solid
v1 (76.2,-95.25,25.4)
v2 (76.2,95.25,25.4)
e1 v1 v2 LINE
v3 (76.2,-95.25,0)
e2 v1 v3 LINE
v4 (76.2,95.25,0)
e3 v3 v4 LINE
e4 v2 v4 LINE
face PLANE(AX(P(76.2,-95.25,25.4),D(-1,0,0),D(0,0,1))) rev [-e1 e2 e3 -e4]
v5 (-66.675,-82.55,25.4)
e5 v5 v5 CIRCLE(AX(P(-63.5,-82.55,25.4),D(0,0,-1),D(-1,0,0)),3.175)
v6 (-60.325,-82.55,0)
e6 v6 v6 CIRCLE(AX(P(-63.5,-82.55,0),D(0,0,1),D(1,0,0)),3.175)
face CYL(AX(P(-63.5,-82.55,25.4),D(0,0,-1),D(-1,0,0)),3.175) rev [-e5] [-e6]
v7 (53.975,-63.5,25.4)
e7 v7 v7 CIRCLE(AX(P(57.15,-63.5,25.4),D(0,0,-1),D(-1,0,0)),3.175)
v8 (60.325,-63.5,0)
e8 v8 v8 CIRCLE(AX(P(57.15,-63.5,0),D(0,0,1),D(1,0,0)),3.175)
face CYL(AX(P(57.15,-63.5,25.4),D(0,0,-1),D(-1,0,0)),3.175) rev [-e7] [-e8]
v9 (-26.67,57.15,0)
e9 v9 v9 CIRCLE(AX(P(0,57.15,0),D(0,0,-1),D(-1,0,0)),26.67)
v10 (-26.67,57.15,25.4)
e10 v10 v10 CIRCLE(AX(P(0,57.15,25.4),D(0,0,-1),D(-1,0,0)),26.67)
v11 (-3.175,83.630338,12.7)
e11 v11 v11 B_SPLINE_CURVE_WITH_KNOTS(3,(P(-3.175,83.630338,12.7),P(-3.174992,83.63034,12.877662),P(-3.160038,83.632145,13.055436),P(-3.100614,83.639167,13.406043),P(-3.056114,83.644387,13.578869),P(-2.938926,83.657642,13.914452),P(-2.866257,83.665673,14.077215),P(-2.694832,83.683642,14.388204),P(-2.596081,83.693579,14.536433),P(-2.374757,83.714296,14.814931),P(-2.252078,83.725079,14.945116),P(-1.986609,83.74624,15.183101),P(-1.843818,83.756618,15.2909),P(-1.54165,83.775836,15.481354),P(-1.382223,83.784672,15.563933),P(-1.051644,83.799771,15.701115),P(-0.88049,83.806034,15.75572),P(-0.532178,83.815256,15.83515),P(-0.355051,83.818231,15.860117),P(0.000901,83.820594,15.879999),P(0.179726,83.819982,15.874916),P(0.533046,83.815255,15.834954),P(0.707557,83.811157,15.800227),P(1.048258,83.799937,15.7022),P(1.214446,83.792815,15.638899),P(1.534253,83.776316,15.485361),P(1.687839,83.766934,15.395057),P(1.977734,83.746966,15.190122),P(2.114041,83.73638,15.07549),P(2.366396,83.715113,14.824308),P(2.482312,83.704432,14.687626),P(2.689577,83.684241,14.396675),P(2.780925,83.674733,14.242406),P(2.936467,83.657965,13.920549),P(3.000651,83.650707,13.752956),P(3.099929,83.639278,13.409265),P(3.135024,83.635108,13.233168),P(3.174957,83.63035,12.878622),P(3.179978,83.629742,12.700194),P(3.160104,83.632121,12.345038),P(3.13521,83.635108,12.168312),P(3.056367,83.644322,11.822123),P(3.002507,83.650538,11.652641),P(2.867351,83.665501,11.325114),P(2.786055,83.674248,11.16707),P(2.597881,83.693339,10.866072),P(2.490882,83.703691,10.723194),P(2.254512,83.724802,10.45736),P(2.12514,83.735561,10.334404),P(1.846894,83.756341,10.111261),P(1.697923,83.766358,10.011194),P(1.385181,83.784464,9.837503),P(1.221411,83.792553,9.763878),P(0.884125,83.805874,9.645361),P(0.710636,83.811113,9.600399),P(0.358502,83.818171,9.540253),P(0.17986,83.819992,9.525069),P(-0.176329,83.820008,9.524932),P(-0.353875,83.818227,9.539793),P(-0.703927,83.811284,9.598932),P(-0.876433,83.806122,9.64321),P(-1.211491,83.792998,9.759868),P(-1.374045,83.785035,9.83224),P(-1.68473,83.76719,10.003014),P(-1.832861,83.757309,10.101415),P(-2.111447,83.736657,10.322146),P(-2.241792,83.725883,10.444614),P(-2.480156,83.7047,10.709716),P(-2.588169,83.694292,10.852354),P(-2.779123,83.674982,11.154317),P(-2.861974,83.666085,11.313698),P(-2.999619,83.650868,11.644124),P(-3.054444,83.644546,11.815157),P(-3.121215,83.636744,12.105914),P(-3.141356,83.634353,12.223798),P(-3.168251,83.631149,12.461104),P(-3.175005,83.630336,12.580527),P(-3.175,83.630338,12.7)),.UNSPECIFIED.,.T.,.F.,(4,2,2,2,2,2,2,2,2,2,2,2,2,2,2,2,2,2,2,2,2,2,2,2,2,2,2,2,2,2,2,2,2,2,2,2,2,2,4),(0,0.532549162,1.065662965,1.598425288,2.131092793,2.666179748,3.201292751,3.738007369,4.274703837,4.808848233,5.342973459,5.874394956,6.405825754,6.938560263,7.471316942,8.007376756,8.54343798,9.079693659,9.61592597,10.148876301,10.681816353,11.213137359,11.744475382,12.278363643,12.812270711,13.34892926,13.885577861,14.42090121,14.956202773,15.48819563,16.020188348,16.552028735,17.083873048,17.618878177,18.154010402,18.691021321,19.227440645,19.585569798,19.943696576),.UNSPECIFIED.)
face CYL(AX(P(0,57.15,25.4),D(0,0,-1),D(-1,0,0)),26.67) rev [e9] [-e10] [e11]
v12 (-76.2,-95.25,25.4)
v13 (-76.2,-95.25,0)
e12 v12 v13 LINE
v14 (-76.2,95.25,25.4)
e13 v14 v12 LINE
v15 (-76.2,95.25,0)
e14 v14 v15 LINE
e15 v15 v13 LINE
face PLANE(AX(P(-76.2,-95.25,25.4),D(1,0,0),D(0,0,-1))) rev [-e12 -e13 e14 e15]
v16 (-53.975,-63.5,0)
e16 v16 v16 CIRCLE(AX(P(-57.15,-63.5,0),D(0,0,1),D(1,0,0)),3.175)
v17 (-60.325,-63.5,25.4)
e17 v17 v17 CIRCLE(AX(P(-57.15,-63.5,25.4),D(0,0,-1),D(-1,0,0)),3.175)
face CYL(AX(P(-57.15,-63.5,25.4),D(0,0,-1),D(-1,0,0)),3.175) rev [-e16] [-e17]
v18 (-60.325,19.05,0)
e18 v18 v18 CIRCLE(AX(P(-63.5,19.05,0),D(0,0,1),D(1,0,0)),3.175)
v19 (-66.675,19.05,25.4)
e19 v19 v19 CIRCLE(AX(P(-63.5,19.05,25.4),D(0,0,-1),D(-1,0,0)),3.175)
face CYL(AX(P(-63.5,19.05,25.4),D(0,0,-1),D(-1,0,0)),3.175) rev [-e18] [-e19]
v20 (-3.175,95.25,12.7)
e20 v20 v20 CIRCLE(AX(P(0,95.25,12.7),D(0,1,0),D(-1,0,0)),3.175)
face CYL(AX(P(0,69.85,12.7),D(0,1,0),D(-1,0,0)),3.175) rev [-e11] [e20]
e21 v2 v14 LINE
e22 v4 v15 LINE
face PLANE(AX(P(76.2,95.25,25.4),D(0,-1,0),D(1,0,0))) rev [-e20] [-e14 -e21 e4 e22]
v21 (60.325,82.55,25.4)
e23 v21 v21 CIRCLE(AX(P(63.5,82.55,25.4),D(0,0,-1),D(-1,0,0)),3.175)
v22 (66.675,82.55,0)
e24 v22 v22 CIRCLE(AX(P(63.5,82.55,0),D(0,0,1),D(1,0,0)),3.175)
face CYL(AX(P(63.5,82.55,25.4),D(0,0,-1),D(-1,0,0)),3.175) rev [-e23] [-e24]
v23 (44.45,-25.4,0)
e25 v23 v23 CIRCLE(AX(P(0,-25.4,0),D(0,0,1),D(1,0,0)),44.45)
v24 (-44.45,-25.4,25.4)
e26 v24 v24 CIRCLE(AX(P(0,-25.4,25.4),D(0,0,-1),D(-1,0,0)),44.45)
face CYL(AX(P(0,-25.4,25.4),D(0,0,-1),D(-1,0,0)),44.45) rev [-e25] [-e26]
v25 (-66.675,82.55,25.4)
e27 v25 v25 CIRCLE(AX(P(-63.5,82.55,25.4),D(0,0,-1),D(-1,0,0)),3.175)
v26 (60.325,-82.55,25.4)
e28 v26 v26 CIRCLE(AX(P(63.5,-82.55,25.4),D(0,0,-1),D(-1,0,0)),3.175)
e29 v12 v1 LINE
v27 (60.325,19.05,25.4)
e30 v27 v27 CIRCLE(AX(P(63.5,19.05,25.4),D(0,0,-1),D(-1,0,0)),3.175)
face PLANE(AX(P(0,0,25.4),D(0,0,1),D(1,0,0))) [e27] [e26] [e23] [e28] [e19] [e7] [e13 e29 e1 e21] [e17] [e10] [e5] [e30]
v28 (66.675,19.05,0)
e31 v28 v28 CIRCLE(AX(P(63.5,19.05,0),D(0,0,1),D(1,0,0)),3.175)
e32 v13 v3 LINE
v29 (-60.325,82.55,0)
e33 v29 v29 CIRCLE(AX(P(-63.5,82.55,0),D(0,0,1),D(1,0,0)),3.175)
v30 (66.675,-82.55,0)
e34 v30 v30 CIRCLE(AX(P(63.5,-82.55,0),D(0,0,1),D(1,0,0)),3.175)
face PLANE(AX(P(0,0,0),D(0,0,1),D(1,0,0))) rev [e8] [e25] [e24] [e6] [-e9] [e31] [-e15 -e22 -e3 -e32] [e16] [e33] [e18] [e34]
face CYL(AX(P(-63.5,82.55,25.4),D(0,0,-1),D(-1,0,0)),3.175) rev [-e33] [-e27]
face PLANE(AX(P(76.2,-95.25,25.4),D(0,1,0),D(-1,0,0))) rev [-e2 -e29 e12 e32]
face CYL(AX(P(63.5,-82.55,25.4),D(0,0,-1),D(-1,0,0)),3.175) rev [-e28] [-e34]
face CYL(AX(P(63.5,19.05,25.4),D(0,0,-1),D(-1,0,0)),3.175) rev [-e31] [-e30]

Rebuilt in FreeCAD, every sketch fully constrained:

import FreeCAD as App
import Part
import Sketcher

V = App.Vector
Q = App.Units.Quantity

doc = App.newDocument("Part")
body = doc.addObject("PartDesign::Body", "Body")

sketch1 = body.newObject("Sketcher::SketchObject", "Sketch")
sketch1.AttachmentSupport = (doc.getObject("XY_Plane"), [""])
sketch1.MapMode = "FlatFace"
sketch1.addGeometry([
    Part.LineSegment(V(-76.2, 95.25, 0), V(-76.2, -95.25, 0)),
    Part.LineSegment(V(-76.2, -95.25, 0), V(76.2, -95.25, 0)),
    Part.LineSegment(V(76.2, -95.25, 0), V(76.2, 95.25, 0)),
    Part.LineSegment(V(76.2, 95.25, 0), V(-76.2, 95.25, 0)),
], False)
sketch1.addConstraint([
    Sketcher.Constraint("Coincident", 0, 2, 1, 1),
    Sketcher.Constraint("Coincident", 1, 2, 2, 1),
    Sketcher.Constraint("Coincident", 2, 2, 3, 1),
    Sketcher.Constraint("Coincident", 3, 2, 0, 1),
    Sketcher.Constraint("Vertical", 0),
    Sketcher.Constraint("Horizontal", 1),
    Sketcher.Constraint("Vertical", 2),
    Sketcher.Constraint("Horizontal", 3),
    Sketcher.Constraint("Symmetric", 0, 2, 2, 2, -1, 1),
    Sketcher.Constraint("DistanceX", 1, 1, 1, 2, Q("6 in")),
    Sketcher.Constraint("DistanceY", 0, 2, 0, 1, Q("7.5 in")),
])
pad1 = body.newObject("PartDesign::Pad", "Pad")
pad1.Profile = sketch1
pad1.Length = Q("1 in")

sketch2 = body.newObject("Sketcher::SketchObject", "Sketch001")
sketch2.AttachmentSupport = (doc.getObject("XY_Plane"), [""])
sketch2.MapMode = "FlatFace"
sketch2.addGeometry(Part.Circle(V(0, 57.15, 0), V(0, 0, 1), 26.67), False)
sketch2.addConstraint([
    Sketcher.Constraint("PointOnObject", 0, 3, -2),
    Sketcher.Constraint("Diameter", 0, Q("2.1 in")),
    Sketcher.Constraint("DistanceY", -1, 1, 0, 3, Q("2.25 in")),
])
pocket1 = body.newObject("PartDesign::Pocket", "Pocket")
pocket1.Profile = sketch2
pocket1.Type = "ThroughAll"
pocket1.Reversed = True

sketch3 = body.newObject("Sketcher::SketchObject", "Sketch002")
sketch3.AttachmentSupport = (doc.getObject("XY_Plane"), [""])
sketch3.MapMode = "FlatFace"
sketch3.addGeometry([
    Part.Circle(V(63.5, 82.55, 0), V(0, 0, 1), 3.175),
    Part.Circle(V(-63.5, 82.55, 0), V(0, 0, 1), 3.175),
    Part.Circle(V(-63.5, -82.55, 0), V(0, 0, 1), 3.175),
    Part.Circle(V(63.5, -82.55, 0), V(0, 0, 1), 3.175),
], False)
sketch3.addConstraint([
    Sketcher.Constraint("Equal", 0, 1),
    Sketcher.Constraint("Equal", 1, 2),
    Sketcher.Constraint("Equal", 2, 3),
    Sketcher.Constraint("Symmetric", 0, 3, 2, 3, -1, 1),
    Sketcher.Constraint("Symmetric", 1, 3, 3, 3, -1, 1),
    Sketcher.Constraint("Symmetric", 0, 3, 1, 3, -2),
    Sketcher.Constraint("Diameter", 0, Q("0.25 in")),
    Sketcher.Constraint("DistanceX", 1, 3, 0, 3, Q("5 in")),
    Sketcher.Constraint("DistanceY", 2, 3, 1, 3, Q("6.5 in")),
])
pocket2 = body.newObject("PartDesign::Pocket", "Pocket001")
pocket2.Profile = sketch3
pocket2.Type = "ThroughAll"
pocket2.Midplane = True

sketch4 = body.newObject("Sketcher::SketchObject", "Sketch003")
sketch4.AttachmentSupport = (doc.getObject("XY_Plane"), [""])
sketch4.MapMode = "FlatFace"
sketch4.addGeometry(Part.Circle(V(0, -25.4, 0), V(0, 0, 1), 44.45), False)
sketch4.addConstraint([
    Sketcher.Constraint("PointOnObject", 0, 3, -2),
    Sketcher.Constraint("Diameter", 0, Q("3.5 in")),
    Sketcher.Constraint("DistanceY", 0, 3, -1, 1, Q("1 in")),
])
pocket3 = body.newObject("PartDesign::Pocket", "Pocket002")
pocket3.Profile = sketch4
pocket3.Type = "ThroughAll"
pocket3.Midplane = True

sketch5 = body.newObject("Sketcher::SketchObject", "Sketch004")
sketch5.AttachmentSupport = (doc.getObject("XY_Plane"), [""])
sketch5.MapMode = "FlatFace"
sketch5.addGeometry([
    Part.Circle(V(63.5, 19.05, 0), V(0, 0, 1), 3.175),
    Part.Circle(V(-63.5, 19.05, 0), V(0, 0, 1), 3.175),
], False)
sketch5.addConstraint([
    Sketcher.Constraint("Equal", 0, 1),
    Sketcher.Constraint("Symmetric", 0, 3, 1, 3, -2),
    Sketcher.Constraint("Diameter", 0, Q("0.25 in")),
    Sketcher.Constraint("DistanceX", 1, 3, 0, 3, Q("5 in")),
    Sketcher.Constraint("DistanceY", -1, 1, 0, 3, Q("0.75 in")),
])
pocket4 = body.newObject("PartDesign::Pocket", "Pocket003")
pocket4.Profile = sketch5
pocket4.Type = "ThroughAll"
pocket4.Midplane = True

sketch6 = body.newObject("Sketcher::SketchObject", "Sketch005")
sketch6.AttachmentSupport = (doc.getObject("XY_Plane"), [""])
sketch6.MapMode = "FlatFace"
sketch6.addGeometry([
    Part.Circle(V(57.15, -63.5, 0), V(0, 0, 1), 3.175),
    Part.Circle(V(-57.15, -63.5, 0), V(0, 0, 1), 3.175),
], False)
sketch6.addConstraint([
    Sketcher.Constraint("Equal", 0, 1),
    Sketcher.Constraint("Symmetric", 0, 3, 1, 3, -2),
    Sketcher.Constraint("Diameter", 0, Q("0.25 in")),
    Sketcher.Constraint("DistanceY", 0, 3, -1, 1, Q("2.5 in")),
    Sketcher.Constraint("DistanceX", 1, 3, 0, 3, Q("4.5 in")),
])
pocket5 = body.newObject("PartDesign::Pocket", "Pocket004")
pocket5.Profile = sketch6
pocket5.Type = "ThroughAll"
pocket5.Midplane = True

sketch7 = body.newObject("Sketcher::SketchObject", "Sketch006")
sketch7.AttachmentSupport = (doc.getObject("XZ_Plane"), [""])
sketch7.MapMode = "FlatFace"
sketch7.AttachmentOffset = App.Placement(V(0, 0, -3.75 * 25.4), App.Rotation())
sketch7.addGeometry(Part.Circle(V(0, 12.7, 0), V(0, 0, 1), 3.175), False)
sketch7.addConstraint([
    Sketcher.Constraint("PointOnObject", 0, 3, -2),
    Sketcher.Constraint("Diameter", 0, Q("0.25 in")),
    Sketcher.Constraint("DistanceY", -1, 1, 0, 3, Q("0.5 in")),
])
pocket6 = body.newObject("PartDesign::Pocket", "Pocket005")
pocket6.Profile = sketch7
pocket6.Length = Q("1 in")
pocket6.Reversed = True

doc.recompute()
